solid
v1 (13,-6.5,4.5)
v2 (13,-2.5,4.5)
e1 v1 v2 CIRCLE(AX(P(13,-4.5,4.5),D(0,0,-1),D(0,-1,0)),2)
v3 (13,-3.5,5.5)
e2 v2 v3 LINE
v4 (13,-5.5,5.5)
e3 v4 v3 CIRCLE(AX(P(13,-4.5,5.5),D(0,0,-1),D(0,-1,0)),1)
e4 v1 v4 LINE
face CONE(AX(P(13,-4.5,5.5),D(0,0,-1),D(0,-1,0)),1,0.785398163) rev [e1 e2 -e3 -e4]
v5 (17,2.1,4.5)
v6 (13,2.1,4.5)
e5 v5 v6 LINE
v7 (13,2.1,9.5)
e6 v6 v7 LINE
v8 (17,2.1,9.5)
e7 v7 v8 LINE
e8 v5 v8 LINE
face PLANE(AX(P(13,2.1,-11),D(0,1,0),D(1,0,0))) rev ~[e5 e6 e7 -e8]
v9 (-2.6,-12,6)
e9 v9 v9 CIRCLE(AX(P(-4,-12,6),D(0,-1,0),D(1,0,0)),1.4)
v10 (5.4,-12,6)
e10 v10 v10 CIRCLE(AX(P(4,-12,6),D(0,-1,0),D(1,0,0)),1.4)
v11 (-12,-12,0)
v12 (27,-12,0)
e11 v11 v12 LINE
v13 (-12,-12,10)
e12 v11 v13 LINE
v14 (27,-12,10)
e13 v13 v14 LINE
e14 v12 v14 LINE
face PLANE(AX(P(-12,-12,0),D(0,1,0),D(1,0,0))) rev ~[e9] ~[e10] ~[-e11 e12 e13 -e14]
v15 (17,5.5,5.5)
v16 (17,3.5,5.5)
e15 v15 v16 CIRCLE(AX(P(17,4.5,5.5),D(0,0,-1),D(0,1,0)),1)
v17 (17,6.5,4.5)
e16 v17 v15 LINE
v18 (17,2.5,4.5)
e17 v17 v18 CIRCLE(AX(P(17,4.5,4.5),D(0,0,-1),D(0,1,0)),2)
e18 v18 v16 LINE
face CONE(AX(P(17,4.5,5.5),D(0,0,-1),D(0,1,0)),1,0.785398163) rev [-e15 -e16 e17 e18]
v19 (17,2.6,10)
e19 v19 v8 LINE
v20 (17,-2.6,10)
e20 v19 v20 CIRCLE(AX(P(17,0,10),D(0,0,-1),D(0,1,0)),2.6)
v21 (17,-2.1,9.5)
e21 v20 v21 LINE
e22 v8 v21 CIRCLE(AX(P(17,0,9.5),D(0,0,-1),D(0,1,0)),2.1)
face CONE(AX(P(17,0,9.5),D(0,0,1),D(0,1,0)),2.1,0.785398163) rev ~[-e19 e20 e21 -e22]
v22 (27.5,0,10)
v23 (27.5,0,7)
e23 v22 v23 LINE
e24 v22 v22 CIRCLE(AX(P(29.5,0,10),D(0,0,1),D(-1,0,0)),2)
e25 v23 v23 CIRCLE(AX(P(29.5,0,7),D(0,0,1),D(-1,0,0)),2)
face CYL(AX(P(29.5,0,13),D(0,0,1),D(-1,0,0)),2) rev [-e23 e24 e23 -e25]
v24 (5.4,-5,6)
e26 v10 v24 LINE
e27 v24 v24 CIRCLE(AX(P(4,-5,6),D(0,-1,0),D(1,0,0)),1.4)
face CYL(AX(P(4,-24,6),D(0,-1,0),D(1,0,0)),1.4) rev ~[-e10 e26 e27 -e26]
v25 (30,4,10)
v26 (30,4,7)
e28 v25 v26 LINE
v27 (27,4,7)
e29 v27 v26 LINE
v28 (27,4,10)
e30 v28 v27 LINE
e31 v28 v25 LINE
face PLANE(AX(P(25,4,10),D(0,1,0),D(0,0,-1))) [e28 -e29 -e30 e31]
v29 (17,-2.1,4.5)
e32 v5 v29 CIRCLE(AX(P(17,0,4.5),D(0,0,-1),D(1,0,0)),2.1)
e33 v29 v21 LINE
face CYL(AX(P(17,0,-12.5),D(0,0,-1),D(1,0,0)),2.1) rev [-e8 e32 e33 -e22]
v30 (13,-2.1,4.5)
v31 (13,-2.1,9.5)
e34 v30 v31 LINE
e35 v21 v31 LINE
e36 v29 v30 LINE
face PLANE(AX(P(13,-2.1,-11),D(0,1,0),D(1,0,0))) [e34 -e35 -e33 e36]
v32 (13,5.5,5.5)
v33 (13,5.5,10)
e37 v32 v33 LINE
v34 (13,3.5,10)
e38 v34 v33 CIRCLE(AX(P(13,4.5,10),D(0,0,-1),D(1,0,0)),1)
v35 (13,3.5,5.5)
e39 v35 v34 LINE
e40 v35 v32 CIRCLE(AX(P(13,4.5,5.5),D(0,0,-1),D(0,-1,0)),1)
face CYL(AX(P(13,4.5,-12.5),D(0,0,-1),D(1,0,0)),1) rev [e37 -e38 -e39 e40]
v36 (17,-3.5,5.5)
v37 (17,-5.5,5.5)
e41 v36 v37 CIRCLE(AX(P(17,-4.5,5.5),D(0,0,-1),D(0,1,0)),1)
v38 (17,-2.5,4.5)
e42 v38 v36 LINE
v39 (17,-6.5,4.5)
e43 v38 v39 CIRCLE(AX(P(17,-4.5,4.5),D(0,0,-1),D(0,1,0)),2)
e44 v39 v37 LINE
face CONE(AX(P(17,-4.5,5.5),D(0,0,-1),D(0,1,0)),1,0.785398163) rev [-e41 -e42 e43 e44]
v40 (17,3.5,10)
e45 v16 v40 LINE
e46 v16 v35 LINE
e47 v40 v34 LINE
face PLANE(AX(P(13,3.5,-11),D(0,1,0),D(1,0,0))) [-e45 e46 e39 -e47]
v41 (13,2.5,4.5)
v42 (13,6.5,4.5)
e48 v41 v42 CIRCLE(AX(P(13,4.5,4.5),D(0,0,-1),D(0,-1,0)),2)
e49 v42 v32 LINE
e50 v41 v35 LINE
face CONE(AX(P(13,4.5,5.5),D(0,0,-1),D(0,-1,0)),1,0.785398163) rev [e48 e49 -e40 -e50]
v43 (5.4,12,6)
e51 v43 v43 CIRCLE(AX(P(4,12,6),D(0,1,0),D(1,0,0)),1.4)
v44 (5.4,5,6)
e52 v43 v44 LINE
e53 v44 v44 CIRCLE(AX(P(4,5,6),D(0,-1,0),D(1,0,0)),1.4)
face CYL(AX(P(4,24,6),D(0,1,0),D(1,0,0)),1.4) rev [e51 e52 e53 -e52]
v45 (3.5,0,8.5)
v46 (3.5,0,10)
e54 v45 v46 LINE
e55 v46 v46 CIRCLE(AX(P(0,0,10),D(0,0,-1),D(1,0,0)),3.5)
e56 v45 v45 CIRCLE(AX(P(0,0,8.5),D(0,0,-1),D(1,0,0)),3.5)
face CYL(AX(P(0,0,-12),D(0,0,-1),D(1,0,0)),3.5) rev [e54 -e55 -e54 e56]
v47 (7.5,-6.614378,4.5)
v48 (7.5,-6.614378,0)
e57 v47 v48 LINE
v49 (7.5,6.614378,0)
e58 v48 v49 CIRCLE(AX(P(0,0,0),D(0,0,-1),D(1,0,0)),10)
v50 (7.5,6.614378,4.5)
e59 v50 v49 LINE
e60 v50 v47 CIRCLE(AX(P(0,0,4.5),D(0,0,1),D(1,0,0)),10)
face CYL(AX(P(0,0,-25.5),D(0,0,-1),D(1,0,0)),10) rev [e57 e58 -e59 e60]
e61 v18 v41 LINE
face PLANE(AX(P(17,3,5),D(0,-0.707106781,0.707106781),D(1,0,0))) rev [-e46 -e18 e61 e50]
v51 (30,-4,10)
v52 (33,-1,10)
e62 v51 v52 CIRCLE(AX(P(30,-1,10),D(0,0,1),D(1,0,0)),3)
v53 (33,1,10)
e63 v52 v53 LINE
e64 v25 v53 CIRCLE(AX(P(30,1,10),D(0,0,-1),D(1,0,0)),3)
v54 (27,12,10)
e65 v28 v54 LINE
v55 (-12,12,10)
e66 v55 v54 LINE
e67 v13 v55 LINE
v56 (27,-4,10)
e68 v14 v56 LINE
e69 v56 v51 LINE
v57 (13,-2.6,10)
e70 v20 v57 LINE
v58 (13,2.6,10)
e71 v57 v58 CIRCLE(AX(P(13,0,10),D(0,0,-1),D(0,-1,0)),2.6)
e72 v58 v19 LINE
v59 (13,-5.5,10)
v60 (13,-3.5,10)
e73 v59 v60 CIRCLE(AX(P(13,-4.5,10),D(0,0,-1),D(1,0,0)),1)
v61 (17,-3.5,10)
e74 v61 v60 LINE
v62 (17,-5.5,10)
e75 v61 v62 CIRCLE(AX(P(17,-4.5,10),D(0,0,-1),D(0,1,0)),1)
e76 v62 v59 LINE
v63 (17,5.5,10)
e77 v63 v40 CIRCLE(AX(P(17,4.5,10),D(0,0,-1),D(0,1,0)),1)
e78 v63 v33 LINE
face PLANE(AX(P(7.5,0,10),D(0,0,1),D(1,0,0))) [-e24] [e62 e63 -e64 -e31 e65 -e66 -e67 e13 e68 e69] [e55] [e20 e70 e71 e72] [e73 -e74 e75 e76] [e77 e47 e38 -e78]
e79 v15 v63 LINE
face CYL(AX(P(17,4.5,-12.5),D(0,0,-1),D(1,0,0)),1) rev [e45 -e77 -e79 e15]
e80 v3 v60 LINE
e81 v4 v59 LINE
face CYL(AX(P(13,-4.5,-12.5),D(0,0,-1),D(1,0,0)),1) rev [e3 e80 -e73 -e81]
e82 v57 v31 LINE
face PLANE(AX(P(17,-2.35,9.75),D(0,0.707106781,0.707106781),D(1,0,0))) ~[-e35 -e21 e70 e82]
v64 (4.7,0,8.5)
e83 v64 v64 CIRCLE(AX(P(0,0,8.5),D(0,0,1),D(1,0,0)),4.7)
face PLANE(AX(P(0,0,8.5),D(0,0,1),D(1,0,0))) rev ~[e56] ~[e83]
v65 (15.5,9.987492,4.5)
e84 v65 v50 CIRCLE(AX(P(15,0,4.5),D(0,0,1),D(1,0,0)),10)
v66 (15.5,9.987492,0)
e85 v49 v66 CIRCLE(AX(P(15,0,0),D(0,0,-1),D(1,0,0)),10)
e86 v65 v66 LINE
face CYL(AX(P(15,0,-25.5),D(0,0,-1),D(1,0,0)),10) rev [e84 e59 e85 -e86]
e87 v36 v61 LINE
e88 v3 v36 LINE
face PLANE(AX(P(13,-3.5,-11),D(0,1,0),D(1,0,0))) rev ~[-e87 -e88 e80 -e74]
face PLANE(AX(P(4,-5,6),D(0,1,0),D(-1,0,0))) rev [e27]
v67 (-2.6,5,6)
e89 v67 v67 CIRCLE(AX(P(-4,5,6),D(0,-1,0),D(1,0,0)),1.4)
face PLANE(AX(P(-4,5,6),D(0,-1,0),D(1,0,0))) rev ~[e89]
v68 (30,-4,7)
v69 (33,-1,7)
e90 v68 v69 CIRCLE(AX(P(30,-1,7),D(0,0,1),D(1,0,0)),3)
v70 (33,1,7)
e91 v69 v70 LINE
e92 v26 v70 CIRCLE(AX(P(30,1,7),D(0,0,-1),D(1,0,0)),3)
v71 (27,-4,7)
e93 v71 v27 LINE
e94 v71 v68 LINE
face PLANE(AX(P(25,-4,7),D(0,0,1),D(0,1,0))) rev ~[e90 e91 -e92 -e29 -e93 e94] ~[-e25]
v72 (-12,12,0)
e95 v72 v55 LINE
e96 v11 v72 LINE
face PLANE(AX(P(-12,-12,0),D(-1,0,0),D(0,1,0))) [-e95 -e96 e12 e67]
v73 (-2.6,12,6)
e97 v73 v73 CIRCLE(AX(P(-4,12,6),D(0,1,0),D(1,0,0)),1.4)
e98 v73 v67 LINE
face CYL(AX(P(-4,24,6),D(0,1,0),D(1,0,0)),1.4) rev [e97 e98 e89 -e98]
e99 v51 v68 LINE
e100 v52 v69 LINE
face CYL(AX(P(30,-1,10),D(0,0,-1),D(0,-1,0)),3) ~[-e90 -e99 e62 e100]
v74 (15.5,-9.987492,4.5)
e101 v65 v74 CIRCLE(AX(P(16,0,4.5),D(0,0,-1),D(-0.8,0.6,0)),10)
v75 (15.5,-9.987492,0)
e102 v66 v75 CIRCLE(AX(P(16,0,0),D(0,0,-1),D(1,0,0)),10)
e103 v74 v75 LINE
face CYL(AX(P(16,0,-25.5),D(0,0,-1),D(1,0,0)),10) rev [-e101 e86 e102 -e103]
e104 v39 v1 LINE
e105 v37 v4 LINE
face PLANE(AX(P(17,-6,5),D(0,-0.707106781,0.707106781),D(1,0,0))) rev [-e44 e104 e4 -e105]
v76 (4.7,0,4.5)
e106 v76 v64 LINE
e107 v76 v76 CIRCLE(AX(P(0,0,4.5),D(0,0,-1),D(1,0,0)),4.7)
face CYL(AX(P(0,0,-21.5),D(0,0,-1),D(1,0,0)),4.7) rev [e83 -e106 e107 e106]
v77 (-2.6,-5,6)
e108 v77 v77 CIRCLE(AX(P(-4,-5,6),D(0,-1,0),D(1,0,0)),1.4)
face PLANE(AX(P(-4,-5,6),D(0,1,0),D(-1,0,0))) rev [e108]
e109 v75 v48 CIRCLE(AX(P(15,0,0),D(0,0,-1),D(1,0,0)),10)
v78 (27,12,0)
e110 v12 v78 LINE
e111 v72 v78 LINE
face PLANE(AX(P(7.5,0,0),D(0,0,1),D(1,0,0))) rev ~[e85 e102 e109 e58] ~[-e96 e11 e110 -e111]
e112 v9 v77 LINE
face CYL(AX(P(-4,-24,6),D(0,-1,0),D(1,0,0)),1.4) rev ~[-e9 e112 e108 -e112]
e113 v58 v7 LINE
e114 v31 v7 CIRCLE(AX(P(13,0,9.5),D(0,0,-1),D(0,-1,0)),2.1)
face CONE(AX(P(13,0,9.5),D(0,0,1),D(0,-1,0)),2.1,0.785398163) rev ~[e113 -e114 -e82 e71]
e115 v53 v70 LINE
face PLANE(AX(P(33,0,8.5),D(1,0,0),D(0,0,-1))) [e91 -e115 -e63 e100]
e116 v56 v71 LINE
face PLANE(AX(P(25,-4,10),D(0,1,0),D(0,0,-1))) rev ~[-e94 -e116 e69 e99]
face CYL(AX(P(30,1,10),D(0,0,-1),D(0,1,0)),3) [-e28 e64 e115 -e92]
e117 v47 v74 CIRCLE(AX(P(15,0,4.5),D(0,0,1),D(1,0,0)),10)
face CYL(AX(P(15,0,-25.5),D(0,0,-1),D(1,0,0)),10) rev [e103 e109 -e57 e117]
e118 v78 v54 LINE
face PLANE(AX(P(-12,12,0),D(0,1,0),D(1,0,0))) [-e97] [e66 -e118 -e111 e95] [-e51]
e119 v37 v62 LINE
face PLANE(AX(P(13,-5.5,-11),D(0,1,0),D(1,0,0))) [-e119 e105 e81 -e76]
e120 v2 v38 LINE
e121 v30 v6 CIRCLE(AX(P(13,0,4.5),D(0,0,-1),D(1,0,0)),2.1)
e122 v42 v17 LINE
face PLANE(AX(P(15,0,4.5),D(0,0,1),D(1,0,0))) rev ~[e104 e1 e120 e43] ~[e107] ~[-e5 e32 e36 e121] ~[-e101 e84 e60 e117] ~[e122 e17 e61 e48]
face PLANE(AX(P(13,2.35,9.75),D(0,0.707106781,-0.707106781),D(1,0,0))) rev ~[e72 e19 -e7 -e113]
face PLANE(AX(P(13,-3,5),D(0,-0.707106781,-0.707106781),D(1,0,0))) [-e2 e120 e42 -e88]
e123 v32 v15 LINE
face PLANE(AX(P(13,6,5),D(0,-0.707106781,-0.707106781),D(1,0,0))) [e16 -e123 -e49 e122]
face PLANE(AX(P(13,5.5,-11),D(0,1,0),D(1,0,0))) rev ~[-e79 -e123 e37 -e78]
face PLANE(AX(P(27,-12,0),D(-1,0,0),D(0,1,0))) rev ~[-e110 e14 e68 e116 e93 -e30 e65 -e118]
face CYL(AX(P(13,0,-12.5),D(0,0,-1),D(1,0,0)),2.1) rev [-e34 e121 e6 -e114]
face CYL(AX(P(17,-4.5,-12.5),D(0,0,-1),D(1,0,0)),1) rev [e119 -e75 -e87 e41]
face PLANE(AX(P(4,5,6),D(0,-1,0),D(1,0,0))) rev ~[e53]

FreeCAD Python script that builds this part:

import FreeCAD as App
import Part
import Sketcher
from FreeCAD import Vector
Q = App.Units.Quantity


def edges_at(feature, points):
    """Names of the edges that pass closest to the given points."""
    edges = feature.Shape.Edges
    near = lambda p: min(range(len(edges)), key=lambda i: edges[i].distToShape(Part.Vertex(*p))[0])
    return sorted({f"Edge{near(p) + 1}" for p in points})

doc = App.newDocument("Part")
body = doc.addObject("PartDesign::Body", "Body")

# Sketch on XY plane
sketch1 = body.newObject("Sketcher::SketchObject", "Sketch")
sketch1.AttachmentSupport = (doc.getObject("XY_Plane"), [""])
sketch1.MapMode = "FlatFace"
sketch1.addGeometry(Part.Circle(Vector(0, 0, 0), Vector(0, 0, 1), 2), False)
sketch1.addConstraint(Sketcher.Constraint("Coincident", 0, 3, -1, 1))
sketch1.addConstraint(Sketcher.Constraint("Diameter", 0, Q("4 mm")))
pad1 = body.newObject("PartDesign::Pad", "Pad")
pad1.Profile = sketch1
pad1.Length = 10
body2 = doc.addObject("PartDesign::Body", "Body001")
doc.recompute()

body.Placement = App.Placement(Vector(0, 0, 0), App.Rotation(Vector(0, 1, 0), 90))
boolean = body2.newObject("PartDesign::Boolean", "Boolean")
boolean.Type = "Fuse"
boolean.addObjects([body])
body3 = doc.addObject("PartDesign::Body", "Body002")
doc.recompute()

body2.Placement = App.Placement(Vector(-3, 4, 4.5), App.Rotation(Vector(0, 0, 1), 0))
boolean2 = body3.newObject("PartDesign::Boolean", "Boolean001")
boolean2.Type = "Fuse"
boolean2.addObjects([body2])
body4 = doc.addObject("PartDesign::Body", "Body003")

# Sketch on XY plane
sketch2 = body4.newObject("Sketcher::SketchObject", "Sketch001")
sketch2.AttachmentSupport = (doc.getObject("XY_Plane003"), [""])
sketch2.MapMode = "FlatFace"
sketch2.addGeometry(Part.LineSegment(Vector(0, 8, 0), Vector(0, 0, 0)), False)
sketch2.addGeometry(Part.LineSegment(Vector(0, 0, 0), Vector(3, 0, 0)), False)
sketch2.addGeometry(Part.LineSegment(Vector(3, 0, 0), Vector(3, 8, 0)), False)
sketch2.addGeometry(Part.LineSegment(Vector(3, 8, 0), Vector(0, 8, 0)), False)
sketch2.addConstraint(Sketcher.Constraint("Coincident", 0, 2, 1, 1))
sketch2.addConstraint(Sketcher.Constraint("Coincident", 1, 2, 2, 1))
sketch2.addConstraint(Sketcher.Constraint("Coincident", 2, 2, 3, 1))
sketch2.addConstraint(Sketcher.Constraint("Coincident", 3, 2, 0, 1))
sketch2.addConstraint(Sketcher.Constraint("Vertical", 0))
sketch2.addConstraint(Sketcher.Constraint("Horizontal", 1))
sketch2.addConstraint(Sketcher.Constraint("Vertical", 2))
sketch2.addConstraint(Sketcher.Constraint("Horizontal", 3))
sketch2.addConstraint(Sketcher.Constraint("Coincident", 0, 2, -1, 1))
sketch2.addConstraint(Sketcher.Constraint("DistanceX", 1, 1, 1, 2, Q("3 mm")))
sketch2.addConstraint(Sketcher.Constraint("DistanceY", 0, 2, 0, 1, Q("8 mm")))
pad2 = body4.newObject("PartDesign::Pad", "Pad001")
pad2.Profile = sketch2
pad2.Length = 8
doc.recompute()

fillet = body4.newObject("PartDesign::Fillet", "Fillet")
fillet.Base = (pad2, edges_at(pad2, [(1.5, 0, 8), (1.5, 8, 8)]))
fillet.Radius = 3
doc.recompute()

boolean3 = body4.newObject("PartDesign::Boolean", "Boolean002")
boolean3.Type = "Cut"
boolean3.addObjects([body3])
body5 = doc.addObject("PartDesign::Body", "Body004")
doc.recompute()

body4.Placement = App.Placement(Vector(0, 0, 0), App.Rotation(Vector(0, 1, 0), 90))
boolean4 = body5.newObject("PartDesign::Boolean", "Boolean003")
boolean4.Type = "Fuse"
boolean4.addObjects([body4])
body6 = doc.addObject("PartDesign::Body", "Body005")
doc.recompute()

body5.Placement = App.Placement(Vector(25, -4, 10), App.Rotation(Vector(0, 0, 1), 0))
boolean5 = body6.newObject("PartDesign::Boolean", "Boolean004")
boolean5.Type = "Fuse"
boolean5.addObjects([body5])
body7 = doc.addObject("PartDesign::Body", "Body006")

# Sketch on XY plane
sketch3 = body7.newObject("Sketcher::SketchObject", "Sketch002")
sketch3.AttachmentSupport = (doc.getObject("XY_Plane006"), [""])
sketch3.MapMode = "FlatFace"
sketch3.addGeometry(Part.Circle(Vector(0, 0, 0), Vector(0, 0, 1), 1.4), False)
sketch3.addConstraint(Sketcher.Constraint("Coincident", 0, 3, -1, 1))
sketch3.addConstraint(Sketcher.Constraint("Diameter", 0, Q("2.8 mm")))
pad3 = body7.newObject("PartDesign::Pad", "Pad002")
pad3.Profile = sketch3
pad3.Length = 19
body8 = doc.addObject("PartDesign::Body", "Body007")
doc.recompute()

body7.Placement = App.Placement(Vector(0, 0, 0), App.Rotation(Vector(1, 0, 0), 90))
boolean6 = body8.newObject("PartDesign::Boolean", "Boolean005")
boolean6.Type = "Fuse"
boolean6.addObjects([body7])
body9 = doc.addObject("PartDesign::Body", "Body008")
doc.recompute()

body8.Placement = App.Placement(Vector(4, 24, 6), App.Rotation(Vector(0, 0, 1), 0))
boolean7 = body9.newObject("PartDesign::Boolean", "Boolean006")
boolean7.Type = "Fuse"
boolean7.addObjects([body8])
body10 = doc.addObject("PartDesign::Body", "Body009")

# Sketch on XY plane
sketch4 = body10.newObject("Sketcher::SketchObject", "Sketch003")
sketch4.AttachmentSupport = (doc.getObject("XY_Plane009"), [""])
sketch4.MapMode = "FlatFace"
sketch4.addGeometry(Part.Circle(Vector(0, 0, 0), Vector(0, 0, 1), 1.4), False)
sketch4.addConstraint(Sketcher.Constraint("Coincident", 0, 3, -1, 1))
sketch4.addConstraint(Sketcher.Constraint("Diameter", 0, Q("2.8 mm")))
pad4 = body10.newObject("PartDesign::Pad", "Pad003")
pad4.Profile = sketch4
pad4.Length = 19
body11 = doc.addObject("PartDesign::Body", "Body010")
doc.recompute()

body10.Placement = App.Placement(Vector(0, 0, 0), App.Rotation(Vector(1, 0, 0), 90))
boolean8 = body11.newObject("PartDesign::Boolean", "Boolean007")
boolean8.Type = "Fuse"
boolean8.addObjects([body10])
body12 = doc.addObject("PartDesign::Body", "Body011")
doc.recompute()

body11.Placement = App.Placement(Vector(-4, 24, 6), App.Rotation(Vector(0, 0, 1), 0))
boolean9 = body12.newObject("PartDesign::Boolean", "Boolean008")
boolean9.Type = "Fuse"
boolean9.addObjects([body11])
body13 = doc.addObject("PartDesign::Body", "Body012")
doc.recompute()

mirroring = doc.addObject("Part::Mirroring", "Mirroring")
mirroring.Source = body12
mirroring.Base = Vector(0, 0, 0)
mirroring.Normal = Vector(0, 1, 0)
body13.BaseFeature = mirroring
doc.recompute()
body14 = doc.addObject("PartDesign::Body", "Body013")

# Sketch on XY plane
sketch5 = body14.newObject("Sketcher::SketchObject", "Sketch004")
sketch5.AttachmentSupport = (doc.getObject("XY_Plane013"), [""])
sketch5.MapMode = "FlatFace"
sketch5.addGeometry(Part.Circle(Vector(0, 0, 0), Vector(0, 0, 1), 1.4), False)
sketch5.addConstraint(Sketcher.Constraint("Coincident", 0, 3, -1, 1))
sketch5.addConstraint(Sketcher.Constraint("Diameter", 0, Q("2.8 mm")))
pad5 = body14.newObject("PartDesign::Pad", "Pad004")
pad5.Profile = sketch5
pad5.Length = 19
body15 = doc.addObject("PartDesign::Body", "Body014")
doc.recompute()

body14.Placement = App.Placement(Vector(0, 0, 0), App.Rotation(Vector(1, 0, 0), 90))
boolean10 = body15.newObject("PartDesign::Boolean", "Boolean009")
boolean10.Type = "Fuse"
boolean10.addObjects([body14])
body16 = doc.addObject("PartDesign::Body", "Body015")
doc.recompute()

body15.Placement = App.Placement(Vector(4, 24, 6), App.Rotation(Vector(0, 0, 1), 0))
boolean11 = body16.newObject("PartDesign::Boolean", "Boolean010")
boolean11.Type = "Fuse"
boolean11.addObjects([body15])
body17 = doc.addObject("PartDesign::Body", "Body016")
doc.recompute()

mirroring2 = doc.addObject("Part::Mirroring", "Mirroring001")
mirroring2.Source = body16
mirroring2.Base = Vector(0, 0, 0)
mirroring2.Normal = Vector(0, 1, 0)
body17.BaseFeature = mirroring2
doc.recompute()
body18 = doc.addObject("PartDesign::Body", "Body017")

# Sketch on XY plane
sketch6 = body18.newObject("Sketcher::SketchObject", "Sketch005")
sketch6.AttachmentSupport = (doc.getObject("XY_Plane017"), [""])
sketch6.MapMode = "FlatFace"
sketch6.addGeometry(Part.Circle(Vector(0, 0, 0), Vector(0, 0, 1), 1.4), False)
sketch6.addConstraint(Sketcher.Constraint("Coincident", 0, 3, -1, 1))
sketch6.addConstraint(Sketcher.Constraint("Diameter", 0, Q("2.8 mm")))
pad6 = body18.newObject("PartDesign::Pad", "Pad005")
pad6.Profile = sketch6
pad6.Length = 19
body19 = doc.addObject("PartDesign::Body", "Body018")
doc.recompute()

body18.Placement = App.Placement(Vector(0, 0, 0), App.Rotation(Vector(1, 0, 0), 90))
boolean12 = body19.newObject("PartDesign::Boolean", "Boolean011")
boolean12.Type = "Fuse"
boolean12.addObjects([body18])
body20 = doc.addObject("PartDesign::Body", "Body019")
body20.AllowCompound = True
doc.recompute()

body19.Placement = App.Placement(Vector(-4, 24, 6), App.Rotation(Vector(0, 0, 1), 0))
boolean13 = body20.newObject("PartDesign::Boolean", "Boolean012")
boolean13.Type = "Fuse"
boolean13.addObjects([body19])
doc.recompute()

boolean14 = body20.newObject("PartDesign::Boolean", "Boolean013")
boolean14.Type = "Fuse"
boolean14.addObjects([body9])
doc.recompute()

boolean15 = body20.newObject("PartDesign::Boolean", "Boolean014")
boolean15.Type = "Fuse"
boolean15.addObjects([body13])
doc.recompute()

boolean16 = body20.newObject("PartDesign::Boolean", "Boolean015")
boolean16.Type = "Fuse"
boolean16.addObjects([body17])
body21 = doc.addObject("PartDesign::Body", "Body020")

# Sketch on XY plane
sketch7 = body21.newObject("Sketcher::SketchObject", "Sketch006")
sketch7.AttachmentSupport = (doc.getObject("XY_Plane020"), [""])
sketch7.MapMode = "FlatFace"
sketch7.AttachmentOffset = App.Placement(Vector(0, 0, -12.5), App.Rotation())
sketch7.addGeometry(Part.Circle(Vector(17, -4.5, 0), Vector(0, 0, 1), 1), False)
sketch7.addConstraint(Sketcher.Constraint("Diameter", 0, Q("2 mm")))
sketch7.addConstraint(Sketcher.Constraint("DistanceX", -1, 1, 0, 3, Q("17 mm")))
sketch7.addConstraint(Sketcher.Constraint("DistanceY", 0, 3, -1, 1, Q("4.5 mm")))
pad7 = body21.newObject("PartDesign::Pad", "Pad006")
pad7.Profile = sketch7
pad7.Length = 30
body22 = doc.addObject("PartDesign::Body", "Body021")

# Sketch on XY plane
sketch8 = body22.newObject("Sketcher::SketchObject", "Sketch007")
sketch8.AttachmentSupport = (doc.getObject("XY_Plane021"), [""])
sketch8.MapMode = "FlatFace"
sketch8.AttachmentOffset = App.Placement(Vector(0, 0, -12.5), App.Rotation())
sketch8.addGeometry(Part.Circle(Vector(17, 4.5, 0), Vector(0, 0, 1), 1), False)
sketch8.addConstraint(Sketcher.Constraint("Diameter", 0, Q("2 mm")))
sketch8.addConstraint(Sketcher.Constraint("DistanceX", -1, 1, 0, 3, Q("17 mm")))
sketch8.addConstraint(Sketcher.Constraint("DistanceY", -1, 1, 0, 3, Q("4.5 mm")))
pad8 = body22.newObject("PartDesign::Pad", "Pad007")
pad8.Profile = sketch8
pad8.Length = 30
body23 = doc.addObject("PartDesign::Body", "Body022")

# Sketch on XY plane
sketch9 = body23.newObject("Sketcher::SketchObject", "Sketch008")
sketch9.AttachmentSupport = (doc.getObject("XY_Plane022"), [""])
sketch9.MapMode = "FlatFace"
sketch9.AttachmentOffset = App.Placement(Vector(0, 0, -11), App.Rotation())
sketch9.addGeometry(Part.LineSegment(Vector(13, 2.1, 0), Vector(13, -2.1, 0)), False)
sketch9.addGeometry(Part.LineSegment(Vector(13, -2.1, 0), Vector(17, -2.1, 0)), False)
sketch9.addGeometry(Part.LineSegment(Vector(17, -2.1, 0), Vector(17, 2.1, 0)), False)
sketch9.addGeometry(Part.LineSegment(Vector(17, 2.1, 0), Vector(13, 2.1, 0)), False)
sketch9.addConstraint(Sketcher.Constraint("Coincident", 0, 2, 1, 1))
sketch9.addConstraint(Sketcher.Constraint("Coincident", 1, 2, 2, 1))
sketch9.addConstraint(Sketcher.Constraint("Coincident", 2, 2, 3, 1))
sketch9.addConstraint(Sketcher.Constraint("Coincident", 3, 2, 0, 1))
sketch9.addConstraint(Sketcher.Constraint("Vertical", 0))
sketch9.addConstraint(Sketcher.Constraint("Horizontal", 1))
sketch9.addConstraint(Sketcher.Constraint("Vertical", 2))
sketch9.addConstraint(Sketcher.Constraint("Horizontal", 3))
sketch9.addConstraint(Sketcher.Constraint("DistanceX", 1, 1, 1, 2, Q("4 mm")))
sketch9.addConstraint(Sketcher.Constraint("DistanceY", 0, 2, 0, 1, Q("4.2 mm")))
sketch9.addConstraint(Sketcher.Constraint("DistanceX", -1, 1, 0, 2, Q("13 mm")))
sketch9.addConstraint(Sketcher.Constraint("DistanceY", 0, 2, -1, 1, Q("2.1 mm")))
pad9 = body23.newObject("PartDesign::Pad", "Pad008")
pad9.Profile = sketch9
pad9.Length = 27
body24 = doc.addObject("PartDesign::Body", "Body023")

# Sketch on XY plane
sketch10 = body24.newObject("Sketcher::SketchObject", "Sketch009")
sketch10.AttachmentSupport = (doc.getObject("XY_Plane023"), [""])
sketch10.MapMode = "FlatFace"
sketch10.AttachmentOffset = App.Placement(Vector(0, 0, -12.5), App.Rotation())
sketch10.addGeometry(Part.Circle(Vector(17, 0, 0), Vector(0, 0, 1), 2.1), False)
sketch10.addConstraint(Sketcher.Constraint("PointOnObject", 0, 3, -1))
sketch10.addConstraint(Sketcher.Constraint("Diameter", 0, Q("4.2 mm")))
sketch10.addConstraint(Sketcher.Constraint("DistanceX", -1, 1, 0, 3, Q("17 mm")))
pad10 = body24.newObject("PartDesign::Pad", "Pad009")
pad10.Profile = sketch10
pad10.Length = 30
body25 = doc.addObject("PartDesign::Body", "Body024")

# Sketch on XY plane
sketch11 = body25.newObject("Sketcher::SketchObject", "Sketch010")
sketch11.AttachmentSupport = (doc.getObject("XY_Plane024"), [""])
sketch11.MapMode = "FlatFace"
sketch11.AttachmentOffset = App.Placement(Vector(0, 0, -12.5), App.Rotation())
sketch11.addGeometry(Part.Circle(Vector(13, 0, 0), Vector(0, 0, 1), 2.1), False)
sketch11.addConstraint(Sketcher.Constraint("PointOnObject", 0, 3, -1))
sketch11.addConstraint(Sketcher.Constraint("Diameter", 0, Q("4.2 mm")))
sketch11.addConstraint(Sketcher.Constraint("DistanceX", -1, 1, 0, 3, Q("13 mm")))
pad11 = body25.newObject("PartDesign::Pad", "Pad010")
pad11.Profile = sketch11
pad11.Length = 30
body26 = doc.addObject("PartDesign::Body", "Body025")

# Sketch on XY plane
sketch12 = body26.newObject("Sketcher::SketchObject", "Sketch011")
sketch12.AttachmentSupport = (doc.getObject("XY_Plane025"), [""])
sketch12.MapMode = "FlatFace"
sketch12.AttachmentOffset = App.Placement(Vector(0, 0, -12.5), App.Rotation())
sketch12.addGeometry(Part.Circle(Vector(13, -4.5, 0), Vector(0, 0, 1), 1), False)
sketch12.addConstraint(Sketcher.Constraint("Diameter", 0, Q("2 mm")))
sketch12.addConstraint(Sketcher.Constraint("DistanceX", -1, 1, 0, 3, Q("13 mm")))
sketch12.addConstraint(Sketcher.Constraint("DistanceY", 0, 3, -1, 1, Q("4.5 mm")))
pad12 = body26.newObject("PartDesign::Pad", "Pad011")
pad12.Profile = sketch12
pad12.Length = 30
body27 = doc.addObject("PartDesign::Body", "Body026")

# Sketch on XY plane
sketch13 = body27.newObject("Sketcher::SketchObject", "Sketch012")
sketch13.AttachmentSupport = (doc.getObject("XY_Plane026"), [""])
sketch13.MapMode = "FlatFace"
sketch13.AttachmentOffset = App.Placement(Vector(0, 0, -11), App.Rotation())
sketch13.addGeometry(Part.LineSegment(Vector(13, -3.5, 0), Vector(13, -5.5, 0)), False)
sketch13.addGeometry(Part.LineSegment(Vector(13, -5.5, 0), Vector(17, -5.5, 0)), False)
sketch13.addGeometry(Part.LineSegment(Vector(17, -5.5, 0), Vector(17, -3.5, 0)), False)
sketch13.addGeometry(Part.LineSegment(Vector(17, -3.5, 0), Vector(13, -3.5, 0)), False)
sketch13.addConstraint(Sketcher.Constraint("Coincident", 0, 2, 1, 1))
sketch13.addConstraint(Sketcher.Constraint("Coincident", 1, 2, 2, 1))
sketch13.addConstraint(Sketcher.Constraint("Coincident", 2, 2, 3, 1))
sketch13.addConstraint(Sketcher.Constraint("Coincident", 3, 2, 0, 1))
sketch13.addConstraint(Sketcher.Constraint("Vertical", 0))
sketch13.addConstraint(Sketcher.Constraint("Horizontal", 1))
sketch13.addConstraint(Sketcher.Constraint("Vertical", 2))
sketch13.addConstraint(Sketcher.Constraint("Horizontal", 3))
sketch13.addConstraint(Sketcher.Constraint("DistanceX", 1, 1, 1, 2, Q("4 mm")))
sketch13.addConstraint(Sketcher.Constraint("DistanceY", 0, 2, 0, 1, Q("2 mm")))
sketch13.addConstraint(Sketcher.Constraint("DistanceX", -1, 1, 0, 2, Q("13 mm")))
sketch13.addConstraint(Sketcher.Constraint("DistanceY", 0, 2, -1, 1, Q("5.5 mm")))
pad13 = body27.newObject("PartDesign::Pad", "Pad012")
pad13.Profile = sketch13
pad13.Length = 27
body28 = doc.addObject("PartDesign::Body", "Body027")

# Sketch on XY plane
sketch14 = body28.newObject("Sketcher::SketchObject", "Sketch013")
sketch14.AttachmentSupport = (doc.getObject("XY_Plane027"), [""])
sketch14.MapMode = "FlatFace"
sketch14.AttachmentOffset = App.Placement(Vector(0, 0, -12.5), App.Rotation())
sketch14.addGeometry(Part.Circle(Vector(13, 4.5, 0), Vector(0, 0, 1), 1), False)
sketch14.addConstraint(Sketcher.Constraint("Diameter", 0, Q("2 mm")))
sketch14.addConstraint(Sketcher.Constraint("DistanceX", -1, 1, 0, 3, Q("13 mm")))
sketch14.addConstraint(Sketcher.Constraint("DistanceY", -1, 1, 0, 3, Q("4.5 mm")))
pad14 = body28.newObject("PartDesign::Pad", "Pad013")
pad14.Profile = sketch14
pad14.Length = 30
body29 = doc.addObject("PartDesign::Body", "Body028")
body29.AllowCompound = True

# Sketch on XY plane
sketch15 = body29.newObject("Sketcher::SketchObject", "Sketch014")
sketch15.AttachmentSupport = (doc.getObject("XY_Plane028"), [""])
sketch15.MapMode = "FlatFace"
sketch15.AttachmentOffset = App.Placement(Vector(0, 0, -11), App.Rotation())
sketch15.addGeometry(Part.LineSegment(Vector(13, 5.5, 0), Vector(13, 3.5, 0)), False)
sketch15.addGeometry(Part.LineSegment(Vector(13, 3.5, 0), Vector(17, 3.5, 0)), False)
sketch15.addGeometry(Part.LineSegment(Vector(17, 3.5, 0), Vector(17, 5.5, 0)), False)
sketch15.addGeometry(Part.LineSegment(Vector(17, 5.5, 0), Vector(13, 5.5, 0)), False)
sketch15.addConstraint(Sketcher.Constraint("Coincident", 0, 2, 1, 1))
sketch15.addConstraint(Sketcher.Constraint("Coincident", 1, 2, 2, 1))
sketch15.addConstraint(Sketcher.Constraint("Coincident", 2, 2, 3, 1))
sketch15.addConstraint(Sketcher.Constraint("Coincident", 3, 2, 0, 1))
sketch15.addConstraint(Sketcher.Constraint("Vertical", 0))
sketch15.addConstraint(Sketcher.Constraint("Horizontal", 1))
sketch15.addConstraint(Sketcher.Constraint("Vertical", 2))
sketch15.addConstraint(Sketcher.Constraint("Horizontal", 3))
sketch15.addConstraint(Sketcher.Constraint("DistanceX", 1, 1, 1, 2, Q("4 mm")))
sketch15.addConstraint(Sketcher.Constraint("DistanceY", 0, 2, 0, 1, Q("2 mm")))
sketch15.addConstraint(Sketcher.Constraint("DistanceX", -1, 1, 0, 2, Q("13 mm")))
sketch15.addConstraint(Sketcher.Constraint("DistanceY", -1, 1, 0, 2, Q("3.5 mm")))
pad15 = body29.newObject("PartDesign::Pad", "Pad014")
pad15.Profile = sketch15
pad15.Length = 27
doc.recompute()

boolean17 = body29.newObject("PartDesign::Boolean", "Boolean016")
boolean17.Type = "Fuse"
boolean17.addObjects([body21])
doc.recompute()

boolean18 = body29.newObject("PartDesign::Boolean", "Boolean017")
boolean18.Type = "Fuse"
boolean18.addObjects([body22])
doc.recompute()

boolean19 = body29.newObject("PartDesign::Boolean", "Boolean018")
boolean19.Type = "Fuse"
boolean19.addObjects([body23])
doc.recompute()

boolean20 = body29.newObject("PartDesign::Boolean", "Boolean019")
boolean20.Type = "Fuse"
boolean20.addObjects([body24])
doc.recompute()

boolean21 = body29.newObject("PartDesign::Boolean", "Boolean020")
boolean21.Type = "Fuse"
boolean21.addObjects([body25])
doc.recompute()

boolean22 = body29.newObject("PartDesign::Boolean", "Boolean021")
boolean22.Type = "Fuse"
boolean22.addObjects([body26])
doc.recompute()

boolean23 = body29.newObject("PartDesign::Boolean", "Boolean022")
boolean23.Type = "Fuse"
boolean23.addObjects([body27])
doc.recompute()

boolean24 = body29.newObject("PartDesign::Boolean", "Boolean023")
boolean24.Type = "Fuse"
boolean24.addObjects([body28])
body30 = doc.addObject("PartDesign::Body", "Body029")

# Sketch on XY plane
sketch16 = body30.newObject("Sketcher::SketchObject", "Sketch015")
sketch16.AttachmentSupport = (doc.getObject("XY_Plane029"), [""])
sketch16.MapMode = "FlatFace"
sketch16.AttachmentOffset = App.Placement(Vector(0, 0, -12), App.Rotation())
sketch16.addGeometry(Part.Circle(Vector(0, 0, 0), Vector(0, 0, 1), 3.5), False)
sketch16.addConstraint(Sketcher.Constraint("Coincident", 0, 3, -1, 1))
sketch16.addConstraint(Sketcher.Constraint("Diameter", 0, Q("7 mm")))
pad16 = body30.newObject("PartDesign::Pad", "Pad015")
pad16.Profile = sketch16
pad16.Length = 30
body31 = doc.addObject("PartDesign::Body", "Body030")

# Sketch on XY plane
sketch17 = body31.newObject("Sketcher::SketchObject", "Sketch016")
sketch17.AttachmentSupport = (doc.getObject("XY_Plane030"), [""])
sketch17.MapMode = "FlatFace"
sketch17.AttachmentOffset = App.Placement(Vector(0, 0, -21.5), App.Rotation())
sketch17.addGeometry(Part.Circle(Vector(0, 0, 0), Vector(0, 0, 1), 4.7), False)
sketch17.addConstraint(Sketcher.Constraint("Coincident", 0, 3, -1, 1))
sketch17.addConstraint(Sketcher.Constraint("Diameter", 0, Q("9.4 mm")))
pad17 = body31.newObject("PartDesign::Pad", "Pad016")
pad17.Profile = sketch17
pad17.Length = 30
body32 = doc.addObject("PartDesign::Body", "Body031")

# Sketch on XY plane
sketch18 = body32.newObject("Sketcher::SketchObject", "Sketch017")
sketch18.AttachmentSupport = (doc.getObject("XY_Plane031"), [""])
sketch18.MapMode = "FlatFace"
sketch18.AttachmentOffset = App.Placement(Vector(0, 0, -25.5), App.Rotation())
sketch18.addGeometry(Part.Circle(Vector(0, 0, 0), Vector(0, 0, 1), 10), False)
sketch18.addConstraint(Sketcher.Constraint("Coincident", 0, 3, -1, 1))
sketch18.addConstraint(Sketcher.Constraint("Diameter", 0, Q("20 mm")))
pad18 = body32.newObject("PartDesign::Pad", "Pad017")
pad18.Profile = sketch18
pad18.Length = 30
body33 = doc.addObject("PartDesign::Body", "Body032")

# Sketch on XY plane
sketch19 = body33.newObject("Sketcher::SketchObject", "Sketch018")
sketch19.AttachmentSupport = (doc.getObject("XY_Plane032"), [""])
sketch19.MapMode = "FlatFace"
sketch19.AttachmentOffset = App.Placement(Vector(0, 0, -25.5), App.Rotation())
sketch19.addGeometry(Part.Circle(Vector(15, 0, 0), Vector(0, 0, 1), 10), False)
sketch19.addConstraint(Sketcher.Constraint("PointOnObject", 0, 3, -1))
sketch19.addConstraint(Sketcher.Constraint("Diameter", 0, Q("20 mm")))
sketch19.addConstraint(Sketcher.Constraint("DistanceX", -1, 1, 0, 3, Q("15 mm")))
pad19 = body33.newObject("PartDesign::Pad", "Pad018")
pad19.Profile = sketch19
pad19.Length = 30
body34 = doc.addObject("PartDesign::Body", "Body033")
body34.AllowCompound = True

# Sketch on XY plane
sketch20 = body34.newObject("Sketcher::SketchObject", "Sketch019")
sketch20.AttachmentSupport = (doc.getObject("XY_Plane033"), [""])
sketch20.MapMode = "FlatFace"
sketch20.AttachmentOffset = App.Placement(Vector(0, 0, -25.5), App.Rotation())
sketch20.addGeometry(Part.Circle(Vector(16, 0, 0), Vector(0, 0, 1), 10), False)
sketch20.addConstraint(Sketcher.Constraint("PointOnObject", 0, 3, -1))
sketch20.addConstraint(Sketcher.Constraint("Diameter", 0, Q("20 mm")))
sketch20.addConstraint(Sketcher.Constraint("DistanceX", -1, 1, 0, 3, Q("16 mm")))
pad20 = body34.newObject("PartDesign::Pad", "Pad019")
pad20.Profile = sketch20
pad20.Length = 30
doc.recompute()

boolean25 = body34.newObject("PartDesign::Boolean", "Boolean024")
boolean25.Type = "Fuse"
boolean25.addObjects([body30])
doc.recompute()

boolean26 = body34.newObject("PartDesign::Boolean", "Boolean025")
boolean26.Type = "Fuse"
boolean26.addObjects([body31])
doc.recompute()

boolean27 = body34.newObject("PartDesign::Boolean", "Boolean026")
boolean27.Type = "Fuse"
boolean27.addObjects([body32])
doc.recompute()

boolean28 = body34.newObject("PartDesign::Boolean", "Boolean027")
boolean28.Type = "Fuse"
boolean28.addObjects([body33])
doc.recompute()

boolean29 = body34.newObject("PartDesign::Boolean", "Boolean028")
boolean29.Type = "Fuse"
boolean29.addObjects([body29])
body35 = doc.addObject("PartDesign::Body", "Body034")

# Sketch on XY plane
sketch21 = body35.newObject("Sketcher::SketchObject", "Sketch020")
sketch21.AttachmentSupport = (doc.getObject("XY_Plane034"), [""])
sketch21.MapMode = "FlatFace"
sketch21.addGeometry(Part.LineSegment(Vector(-12, 12, 0), Vector(-12, -12, 0)), False)
sketch21.addGeometry(Part.LineSegment(Vector(-12, -12, 0), Vector(27, -12, 0)), False)
sketch21.addGeometry(Part.LineSegment(Vector(27, -12, 0), Vector(27, 12, 0)), False)
sketch21.addGeometry(Part.LineSegment(Vector(27, 12, 0), Vector(-12, 12, 0)), False)
sketch21.addConstraint(Sketcher.Constraint("Coincident", 0, 2, 1, 1))
sketch21.addConstraint(Sketcher.Constraint("Coincident", 1, 2, 2, 1))
sketch21.addConstraint(Sketcher.Constraint("Coincident", 2, 2, 3, 1))
sketch21.addConstraint(Sketcher.Constraint("Coincident", 3, 2, 0, 1))
sketch21.addConstraint(Sketcher.Constraint("Vertical", 0))
sketch21.addConstraint(Sketcher.Constraint("Horizontal", 1))
sketch21.addConstraint(Sketcher.Constraint("Vertical", 2))
sketch21.addConstraint(Sketcher.Constraint("Horizontal", 3))
sketch21.addConstraint(Sketcher.Constraint("DistanceX", 1, 1, 1, 2, Q("39 mm")))
sketch21.addConstraint(Sketcher.Constraint("DistanceY", 0, 2, 0, 1, Q("24 mm")))
sketch21.addConstraint(Sketcher.Constraint("DistanceX", 0, 2, -1, 1, Q("12 mm")))
sketch21.addConstraint(Sketcher.Constraint("DistanceY", 0, 2, -1, 1, Q("12 mm")))
pad21 = body35.newObject("PartDesign::Pad", "Pad020")
pad21.Profile = sketch21
pad21.Length = 10
doc.recompute()

boolean30 = body35.newObject("PartDesign::Boolean", "Boolean029")
boolean30.Type = "Cut"
boolean30.addObjects([body34])
doc.recompute()

chamfer = body35.newObject("PartDesign::Chamfer", "Chamfer")
chamfer.Base = (boolean30, edges_at(boolean30, [
    (12, 4.5, 4.5),
    (15, 3.5, 4.5),
    (18, 4.5, 4.5),
    (18, 4.5, 4.5),
    (15, 5.5, 4.5),
    (18, -4.5, 4.5),
    (18, -4.5, 4.5),
    (15, -3.5, 4.5),
    (12, -4.5, 4.5),
    (15, -5.5, 4.5),
]))
chamfer.Size = 1
doc.recompute()

boolean31 = body35.newObject("PartDesign::Boolean", "Boolean030")
boolean31.Type = "Cut"
boolean31.addObjects([body20])
doc.recompute()

chamfer2 = body35.newObject("PartDesign::Chamfer", "Chamfer001")
chamfer2.Base = (boolean31, edges_at(boolean31, [
    (19.1, 0, 10),
    (15, 2.1, 10),
    (10.9, 0, 10),
    (15, -2.1, 10),
    (19.1, 0, 10),
]))
chamfer2.Size = 0.5
doc.recompute()

boolean32 = body35.newObject("PartDesign::Boolean", "Boolean031")
boolean32.Type = "Fuse"
boolean32.addObjects([body6])
mirroring.Visibility = False
mirroring2.Visibility = False

doc.recompute()
